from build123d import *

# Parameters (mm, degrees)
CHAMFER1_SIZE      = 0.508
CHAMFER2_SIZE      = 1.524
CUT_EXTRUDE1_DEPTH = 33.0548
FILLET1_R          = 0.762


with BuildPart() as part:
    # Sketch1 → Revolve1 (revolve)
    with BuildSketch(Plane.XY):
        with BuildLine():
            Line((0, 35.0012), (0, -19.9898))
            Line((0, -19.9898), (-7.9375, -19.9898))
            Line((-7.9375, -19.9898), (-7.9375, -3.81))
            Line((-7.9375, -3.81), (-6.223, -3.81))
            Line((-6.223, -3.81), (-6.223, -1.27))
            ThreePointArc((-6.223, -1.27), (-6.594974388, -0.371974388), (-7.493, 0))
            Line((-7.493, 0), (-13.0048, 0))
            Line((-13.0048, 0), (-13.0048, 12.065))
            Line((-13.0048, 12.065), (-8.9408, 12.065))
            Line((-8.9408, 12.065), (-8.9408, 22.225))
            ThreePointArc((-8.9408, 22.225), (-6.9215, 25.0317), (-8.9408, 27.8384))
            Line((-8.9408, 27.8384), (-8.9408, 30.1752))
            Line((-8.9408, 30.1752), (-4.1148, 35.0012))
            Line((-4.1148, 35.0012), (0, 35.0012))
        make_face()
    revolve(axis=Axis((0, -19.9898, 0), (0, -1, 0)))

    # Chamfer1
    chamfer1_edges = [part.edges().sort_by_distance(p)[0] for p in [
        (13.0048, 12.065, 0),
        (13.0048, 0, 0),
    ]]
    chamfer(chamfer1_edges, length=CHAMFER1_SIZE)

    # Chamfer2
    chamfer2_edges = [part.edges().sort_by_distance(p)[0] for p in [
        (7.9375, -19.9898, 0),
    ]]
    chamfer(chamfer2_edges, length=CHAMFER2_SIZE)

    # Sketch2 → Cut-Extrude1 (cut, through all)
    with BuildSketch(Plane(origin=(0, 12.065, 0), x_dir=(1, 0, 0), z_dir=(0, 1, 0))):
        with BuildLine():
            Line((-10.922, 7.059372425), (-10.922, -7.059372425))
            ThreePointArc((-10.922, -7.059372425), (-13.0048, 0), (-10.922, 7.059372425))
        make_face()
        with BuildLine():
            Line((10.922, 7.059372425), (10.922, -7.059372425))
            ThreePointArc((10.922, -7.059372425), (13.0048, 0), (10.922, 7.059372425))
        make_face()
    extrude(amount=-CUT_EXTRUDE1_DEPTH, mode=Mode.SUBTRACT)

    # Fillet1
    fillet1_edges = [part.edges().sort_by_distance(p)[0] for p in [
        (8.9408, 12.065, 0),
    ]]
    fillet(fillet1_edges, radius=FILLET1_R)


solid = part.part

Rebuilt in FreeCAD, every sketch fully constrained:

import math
import FreeCAD as App
import Part
import Sketcher

V = App.Vector
Q = App.Units.Quantity


def edges_at(feature, points):
    """Names of the edges that pass closest to the given points."""
    edges = feature.Shape.Edges
    near = lambda p: min(range(len(edges)), key=lambda i: edges[i].distToShape(Part.Vertex(*p))[0])
    return sorted({f"Edge{near(p) + 1}" for p in points})

doc = App.newDocument("Part")
params = doc.addObject("Spreadsheet::Sheet", "Params")
for row, (alias, value) in enumerate([
    ("sketch1_radius", "0.05 in"),
    ("sketch1_height", "0.4 in"),
    ("sketch1_height2", "0.1 in"),
    ("sketch1_width", "0.16 in"),
    ("sketch1_width2", "0.162 in"),
    ("revolution_angle", "360 deg"),
    ("chamfer_size", "0.02 in"),
    ("chamfer2_size", "0.06 in"),
    ("sketch2_radius", "0.512 in"),
    ("fillet_radius", "0.03 in"),
], start=1):
    params.set(f"A{row}", alias)
    params.set(f"B{row}", "=" + value)
    params.setAlias(f"B{row}", alias)

body = doc.addObject("PartDesign::Body", "Body")

# Sketch on XY plane
sketch1 = doc.addObject("Sketcher::SketchObject", "Sketch")
body.addObject(sketch1)
sketch1.AttachmentSupport = (doc.XY_Plane, [""])
sketch1.MapMode = "FlatFace"
sketch1.addGeometry([
    Part.LineSegment(V(0, -20, 0), V(0, 35, 0)),  # 0
    Part.LineSegment(V(0, 35, 0), V(-4.1, 35, 0)),  # 1
    Part.LineSegment(V(-4.1, 35, 0), V(-8.9, 30.2, 0)),  # 2
    Part.LineSegment(V(-8.9, 30.2, 0), V(-8.9, 27.8, 0)),  # 3
    Part.ArcOfCircle(Part.Circle(V(-9.9, 25, 0), V(0, 0, 1), 3), math.radians(-71), math.radians(71)),  # 4
    Part.LineSegment(V(-8.9, 22.2, 0), V(-8.9, 12.1, 0)),  # 5
    Part.LineSegment(V(-8.9, 12.1, 0), V(-13, 12.1, 0)),  # 6
    Part.LineSegment(V(-13, 12.1, 0), V(-13, 0, 0)),  # 7
    Part.LineSegment(V(-13, 0, 0), V(-7.5, 0, 0)),  # 8
    Part.ArcOfCircle(Part.Circle(V(-7.5, -1.3, 0), V(0, 0, 1), 1.3), math.radians(0), math.radians(90)),  # 9
    Part.LineSegment(V(-6.2, -1.3, 0), V(-6.2, -3.8, 0)),  # 10
    Part.LineSegment(V(-6.2, -3.8, 0), V(-7.9, -3.8, 0)),  # 11
    Part.LineSegment(V(-7.9, -3.8, 0), V(-7.9, -20, 0)),  # 12
    Part.LineSegment(V(-7.9, -20, 0), V(0, -20, 0)),  # 13
], False)
sketch1.addConstraint([
    Sketcher.Constraint("Coincident", 0, 2, 1, 1),
    Sketcher.Constraint("Coincident", 1, 2, 2, 1),
    Sketcher.Constraint("Coincident", 2, 2, 3, 1),
    Sketcher.Constraint("Coincident", 3, 2, 4, 2),
    Sketcher.Constraint("Coincident", 4, 1, 5, 1),
    Sketcher.Constraint("Coincident", 5, 2, 6, 1),
    Sketcher.Constraint("Coincident", 6, 2, 7, 1),
    Sketcher.Constraint("Coincident", 7, 2, 8, 1),
    Sketcher.Constraint("Tangent", 8, 2, 9, 2),
    Sketcher.Constraint("Tangent", 9, 1, 10, 1),
    Sketcher.Constraint("Coincident", 10, 2, 11, 1),
    Sketcher.Constraint("Coincident", 11, 2, 12, 1),
    Sketcher.Constraint("Coincident", 12, 2, 13, 1),
    Sketcher.Constraint("Coincident", 13, 2, 0, 1),
    Sketcher.Constraint("Vertical", 0),
    Sketcher.Constraint("Horizontal", 1),
    Sketcher.Constraint("Vertical", 3),
    Sketcher.Constraint("Vertical", 5),
    Sketcher.Constraint("Horizontal", 6),
    Sketcher.Constraint("Vertical", 7),
    Sketcher.Constraint("Horizontal", 8),
    Sketcher.Constraint("Vertical", 10),
    Sketcher.Constraint("Horizontal", 11),
    Sketcher.Constraint("Vertical", 12),
    Sketcher.Constraint("Horizontal", 13),
    Sketcher.Constraint("PointOnObject", 0, 2, -2),
    Sketcher.Constraint("PointOnObject", 7, 2, -1),
    Sketcher.Constraint("Vertical", 3, 2, 4, 1),
    Sketcher.Constraint("Radius", 9, Q("0.05 in")),
    Sketcher.Constraint("DistanceY", 5, 2, 5, 1, Q("0.4 in")),
    Sketcher.Constraint("DistanceY", 10, 2, 10, 1, Q("0.1 in")),
    Sketcher.Constraint("Angle", 2, Q("-135 deg")),
    Sketcher.Constraint("DistanceX", 6, 2, 6, 1, Q("0.16 in")),
    Sketcher.Constraint("DistanceX", 1, 2, 1, 1, Q("0.162 in")),
    Sketcher.Constraint("DistanceX", 8, 1, 8, 2, Q("0.217 in")),
    Sketcher.Constraint("DistanceX", 13, 1, 13, 2, Q("0.3125 in")),
    Sketcher.Constraint("DistanceY", 0, 1, 0, 2, Q("2.165 in")),
    Sketcher.Constraint("DistanceY", 3, 2, 3, 1, Q("0.092 in")),
    Sketcher.Constraint("DistanceY", 7, 2, 7, 1, Q("0.475 in")),
    Sketcher.Constraint("DistanceY", 12, 2, 12, 1, Q("0.637 in")),
    Sketcher.Constraint("DistanceX", 2, 2, 1, 2, Q("0.19 in")),
    Sketcher.Constraint("Radius", 4, Q("2.960218 mm")),
])
sketch1.setExpression("Constraints[28]", "Params.sketch1_radius")
sketch1.setExpression("Constraints[29]", "Params.sketch1_height")
sketch1.setExpression("Constraints[30]", "Params.sketch1_height2")
sketch1.setExpression("Constraints[32]", "Params.sketch1_width")
sketch1.setExpression("Constraints[33]", "Params.sketch1_width2")
revolution = doc.addObject("PartDesign::Revolution", "Revolution")
body.addObject(revolution)
revolution.Profile = sketch1
revolution.ReferenceAxis = (sketch1, ["V_Axis"])
revolution.setExpression("Angle", "Params.revolution_angle")
doc.recompute()

chamfer = doc.addObject("PartDesign::Chamfer", "Chamfer")
body.addObject(chamfer)
chamfer.Base = (revolution, edges_at(revolution, [(13.005, 12.065, 0), (13.005, 0, 0)]))
chamfer.setExpression("Size", "Params.chamfer_size")
doc.recompute()

chamfer2 = doc.addObject("PartDesign::Chamfer", "Chamfer001")
body.addObject(chamfer2)
chamfer2.Base = (chamfer, edges_at(chamfer, [(7.938, -19.99, 0)]))
chamfer2.setExpression("Size", "Params.chamfer2_size")

# Sketch on XZ plane
sketch2 = doc.addObject("Sketcher::SketchObject", "Sketch001")
body.addObject(sketch2)
sketch2.AttachmentSupport = (doc.XZ_Plane, [""])
sketch2.MapMode = "FlatFace"
sketch2.AttachmentOffset = App.Placement(V(0, 0, -0.475 * 25.4), App.Rotation())
sketch2.addGeometry([
    Part.LineSegment(V(-11, 7, 0), V(-11, -7, 0)),
    Part.ArcOfCircle(Part.Circle(V(0, 0, 0), V(0, 0, 1), 13), math.radians(147), math.radians(213)),
    Part.LineSegment(V(11, -7, 0), V(11, 7, 0)),
    Part.ArcOfCircle(Part.Circle(V(0, 0, 0), V(0, 0, 1), 13), math.radians(-33), math.radians(33)),
], False)
sketch2.addConstraint([
    Sketcher.Constraint("Coincident", 0, 1, 1, 1),
    Sketcher.Constraint("Coincident", 1, 2, 0, 2),
    Sketcher.Constraint("Coincident", 2, 1, 3, 1),
    Sketcher.Constraint("Coincident", 3, 2, 2, 2),
    Sketcher.Constraint("Vertical", 0),
    Sketcher.Constraint("Vertical", 2),
    Sketcher.Constraint("Coincident", 1, 3, -1, 1),
    Sketcher.Constraint("Coincident", 3, 3, -1, 1),
    Sketcher.Constraint("Equal", 1, 3),
    Sketcher.Constraint("Horizontal", 1, 2, 2, 1),
    Sketcher.Constraint("Radius", 1, Q("0.512 in")),
    Sketcher.Constraint("DistanceX", 0, 1, -1, 1, Q("0.43 in")),
])
sketch2.setExpression("Constraints[10]", "Params.sketch2_radius")
pocket1 = doc.addObject("PartDesign::Pocket", "Pocket")
body.addObject(pocket1)
pocket1.Profile = sketch2
pocket1.Type = "ThroughAll"
pocket1.Reversed = True
doc.recompute()

fillet = doc.addObject("PartDesign::Fillet", "Fillet")
body.addObject(fillet)
fillet.Base = (pocket1, edges_at(pocket1, [(8.941, 12.065, 0)]))
fillet.setExpression("Radius", "Params.fillet_radius")

doc.recompute()
